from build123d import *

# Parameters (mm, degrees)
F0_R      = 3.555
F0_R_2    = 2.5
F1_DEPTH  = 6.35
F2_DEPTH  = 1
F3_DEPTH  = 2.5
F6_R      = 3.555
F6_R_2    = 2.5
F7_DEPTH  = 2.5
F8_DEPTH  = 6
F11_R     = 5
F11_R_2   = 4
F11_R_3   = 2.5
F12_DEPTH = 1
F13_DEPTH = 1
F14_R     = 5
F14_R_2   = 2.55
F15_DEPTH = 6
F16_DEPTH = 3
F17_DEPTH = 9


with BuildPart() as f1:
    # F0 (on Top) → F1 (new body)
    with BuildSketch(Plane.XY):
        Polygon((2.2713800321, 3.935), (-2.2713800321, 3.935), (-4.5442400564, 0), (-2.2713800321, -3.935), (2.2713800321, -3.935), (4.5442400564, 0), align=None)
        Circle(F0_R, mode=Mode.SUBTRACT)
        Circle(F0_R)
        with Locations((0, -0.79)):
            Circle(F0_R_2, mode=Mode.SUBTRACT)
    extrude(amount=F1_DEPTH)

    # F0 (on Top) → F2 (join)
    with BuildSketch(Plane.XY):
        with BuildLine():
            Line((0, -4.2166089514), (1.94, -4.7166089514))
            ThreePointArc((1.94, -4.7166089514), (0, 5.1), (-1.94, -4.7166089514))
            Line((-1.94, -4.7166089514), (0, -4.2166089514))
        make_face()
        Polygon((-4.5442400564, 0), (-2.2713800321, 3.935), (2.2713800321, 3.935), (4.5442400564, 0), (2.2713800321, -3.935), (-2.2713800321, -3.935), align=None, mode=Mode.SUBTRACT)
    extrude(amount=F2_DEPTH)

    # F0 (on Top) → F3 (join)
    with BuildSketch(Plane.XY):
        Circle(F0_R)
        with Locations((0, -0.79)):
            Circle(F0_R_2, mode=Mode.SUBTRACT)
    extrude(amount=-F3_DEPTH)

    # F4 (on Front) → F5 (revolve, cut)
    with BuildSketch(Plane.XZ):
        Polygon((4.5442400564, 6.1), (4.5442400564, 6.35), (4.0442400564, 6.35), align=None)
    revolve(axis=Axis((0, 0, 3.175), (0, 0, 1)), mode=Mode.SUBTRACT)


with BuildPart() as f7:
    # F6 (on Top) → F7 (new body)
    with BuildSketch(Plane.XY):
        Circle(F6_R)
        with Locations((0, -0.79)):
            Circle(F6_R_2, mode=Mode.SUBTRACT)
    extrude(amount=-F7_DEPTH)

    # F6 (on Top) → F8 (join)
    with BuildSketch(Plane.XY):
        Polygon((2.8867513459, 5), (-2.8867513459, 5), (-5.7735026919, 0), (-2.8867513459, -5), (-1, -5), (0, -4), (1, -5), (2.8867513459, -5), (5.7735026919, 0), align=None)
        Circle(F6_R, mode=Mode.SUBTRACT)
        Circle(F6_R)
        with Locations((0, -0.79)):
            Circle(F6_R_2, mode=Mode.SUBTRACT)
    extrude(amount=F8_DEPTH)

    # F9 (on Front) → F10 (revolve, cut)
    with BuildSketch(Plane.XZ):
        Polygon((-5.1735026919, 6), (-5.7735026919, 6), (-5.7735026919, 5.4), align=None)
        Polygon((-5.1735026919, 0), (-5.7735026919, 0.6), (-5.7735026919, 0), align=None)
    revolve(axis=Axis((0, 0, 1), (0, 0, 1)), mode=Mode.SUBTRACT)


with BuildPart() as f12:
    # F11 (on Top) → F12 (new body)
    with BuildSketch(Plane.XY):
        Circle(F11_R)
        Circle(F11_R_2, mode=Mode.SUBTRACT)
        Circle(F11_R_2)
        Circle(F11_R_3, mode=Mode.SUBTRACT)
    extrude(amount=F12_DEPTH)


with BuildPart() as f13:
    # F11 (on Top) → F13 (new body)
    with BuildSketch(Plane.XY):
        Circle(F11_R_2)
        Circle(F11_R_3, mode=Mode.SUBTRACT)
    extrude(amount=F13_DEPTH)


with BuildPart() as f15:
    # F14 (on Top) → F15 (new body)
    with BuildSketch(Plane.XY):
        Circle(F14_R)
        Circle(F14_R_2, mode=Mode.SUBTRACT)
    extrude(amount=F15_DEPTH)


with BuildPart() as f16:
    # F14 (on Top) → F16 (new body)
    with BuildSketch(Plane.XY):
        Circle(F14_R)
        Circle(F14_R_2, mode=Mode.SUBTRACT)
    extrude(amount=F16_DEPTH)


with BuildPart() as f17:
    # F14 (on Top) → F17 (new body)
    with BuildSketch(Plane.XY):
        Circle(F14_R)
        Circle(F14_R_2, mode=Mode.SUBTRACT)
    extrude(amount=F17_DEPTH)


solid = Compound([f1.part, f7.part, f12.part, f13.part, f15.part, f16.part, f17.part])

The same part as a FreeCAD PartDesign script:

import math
import FreeCAD as App
import Part
import Sketcher
from FreeCAD import Vector
Q = App.Units.Quantity

doc = App.newDocument("Part")
body = doc.addObject("PartDesign::Body", "Body")

sketch1 = doc.addObject("Sketcher::SketchObject", "Sketch")
body.addObject(sketch1)
sketch1.AttachmentSupport = (doc.XY_Plane, [""])
sketch1.MapMode = "FlatFace"
sketch1.addGeometry([
    Part.LineSegment(Vector(2.3, 3.9, 0), Vector(-2.3, 3.9, 0)),
    Part.LineSegment(Vector(-2.3, 3.9, 0), Vector(-4.5, 0, 0)),
    Part.LineSegment(Vector(-4.5, 0, 0), Vector(-2.3, -3.9, 0)),
    Part.LineSegment(Vector(-2.3, -3.9, 0), Vector(2.3, -3.9, 0)),
    Part.LineSegment(Vector(2.3, -3.9, 0), Vector(4.5, 0, 0)),
    Part.LineSegment(Vector(4.5, 0, 0), Vector(2.3, 3.9, 0)),
    Part.Circle(Vector(0, -0.8, 0), Vector(0, 0, 1), 2.5),
], False)
sketch1.addConstraint([
    Sketcher.Constraint("Coincident", 0, 2, 1, 1),
    Sketcher.Constraint("Coincident", 1, 2, 2, 1),
    Sketcher.Constraint("Coincident", 2, 2, 3, 1),
    Sketcher.Constraint("Coincident", 3, 2, 4, 1),
    Sketcher.Constraint("Coincident", 4, 2, 5, 1),
    Sketcher.Constraint("Coincident", 5, 2, 0, 1),
    Sketcher.Constraint("Horizontal", 0),
    Sketcher.Constraint("Horizontal", 3),
    Sketcher.Constraint("Symmetric", 0, 2, 3, 2, -1, 1),
    Sketcher.Constraint("Symmetric", 1, 2, 4, 2, -1, 1),
    Sketcher.Constraint("PointOnObject", 6, 3, -2),
    Sketcher.Constraint("PointOnObject", 1, 2, -1),
    Sketcher.Constraint("Parallel", 2, 5),
    Sketcher.Constraint("Vertical", 0, 2, 2, 2),
    Sketcher.Constraint("Diameter", 6, 5.0),
    Sketcher.Constraint("DistanceY", 6, 3, -1, 1, 0.79),
    Sketcher.Constraint("DistanceY", 2, 2, 0, 2, 7.87),
    Sketcher.Constraint("DistanceX", 0, 2, 0, 1, 4.54276),
    Sketcher.Constraint("Distance", 1, 4.54424),
])
pad1 = doc.addObject("PartDesign::Pad", "Pad")
body.addObject(pad1)
pad1.Profile = sketch1
pad1.Length = 6.35

sketch2 = doc.addObject("Sketcher::SketchObject", "Sketch001")
body.addObject(sketch2)
sketch2.AttachmentSupport = (doc.XY_Plane, [""])
sketch2.MapMode = "FlatFace"
sketch2.addGeometry([
    Part.LineSegment(Vector(0, -4.2, 0), Vector(1.9, -4.7, 0)),
    Part.ArcOfCircle(Part.Circle(Vector(0, 0, 0), Vector(0, 0, 1), 5.1), math.radians(-68), math.radians(248)),
    Part.LineSegment(Vector(-1.9, -4.7, 0), Vector(0, -4.2, 0)),
    Part.LineSegment(Vector(-2.3, -3.9, 0), Vector(-4.5, 0, 0)),
    Part.LineSegment(Vector(-4.5, 0, 0), Vector(-2.3, 3.9, 0)),
    Part.LineSegment(Vector(-2.3, 3.9, 0), Vector(2.3, 3.9, 0)),
    Part.LineSegment(Vector(2.3, 3.9, 0), Vector(4.5, 0, 0)),
    Part.LineSegment(Vector(4.5, 0, 0), Vector(2.3, -3.9, 0)),
    Part.LineSegment(Vector(2.3, -3.9, 0), Vector(-2.3, -3.9, 0)),
], False)
sketch2.addConstraint([
    Sketcher.Constraint("Coincident", 0, 2, 1, 1),
    Sketcher.Constraint("Coincident", 1, 2, 2, 1),
    Sketcher.Constraint("Coincident", 2, 2, 0, 1),
    Sketcher.Constraint("Coincident", 3, 2, 4, 1),
    Sketcher.Constraint("Coincident", 4, 2, 5, 1),
    Sketcher.Constraint("Coincident", 5, 2, 6, 1),
    Sketcher.Constraint("Coincident", 6, 2, 7, 1),
    Sketcher.Constraint("Coincident", 7, 2, 8, 1),
    Sketcher.Constraint("Coincident", 8, 2, 3, 1),
    Sketcher.Constraint("Horizontal", 5),
    Sketcher.Constraint("Horizontal", 8),
    Sketcher.Constraint("Coincident", 1, 3, -1, 1),
    Sketcher.Constraint("Symmetric", 3, 2, 6, 2, -1, 1),
    Sketcher.Constraint("Symmetric", 4, 2, 7, 2, -1, 1),
    Sketcher.Constraint("PointOnObject", 2, 2, -2),
    Sketcher.Constraint("PointOnObject", 3, 2, -1),
    Sketcher.Constraint("Parallel", 3, 6),
    Sketcher.Constraint("Horizontal", 0, 2, 1, 2),
    Sketcher.Constraint("Vertical", 5, 2, 7, 2),
    Sketcher.Constraint("Radius", 1, 5.1),
    Sketcher.Constraint("DistanceY", 0, 2, 2, 2, 0.5),
    Sketcher.Constraint("DistanceX", -1, 1, 0, 2, 1.94),
    Sketcher.Constraint("DistanceY", -1, 1, 4, 2, 3.935),
    Sketcher.Constraint("DistanceX", 5, 1, 5, 2, 4.54276),
    Sketcher.Constraint("Distance", 3, 4.54424),
])
pad2 = doc.addObject("PartDesign::Pad", "Pad001")
body.addObject(pad2)
pad2.Profile = sketch2
pad2.Length = 1

sketch3 = doc.addObject("Sketcher::SketchObject", "Sketch002")
body.addObject(sketch3)
sketch3.AttachmentSupport = (doc.XY_Plane, [""])
sketch3.MapMode = "FlatFace"
sketch3.addGeometry([
    Part.Circle(Vector(0, 0, 0), Vector(0, 0, 1), 3.6),
    Part.Circle(Vector(0, -0.8, 0), Vector(0, 0, 1), 2.5),
], False)
sketch3.addConstraint([
    Sketcher.Constraint("Coincident", 0, 3, -1, 1),
    Sketcher.Constraint("PointOnObject", 1, 3, -2),
    Sketcher.Constraint("Diameter", 1, 5.0),
    Sketcher.Constraint("Diameter", 0, 7.11),
    Sketcher.Constraint("DistanceY", 1, 3, -1, 1, 0.79),
])
pad3 = doc.addObject("PartDesign::Pad", "Pad002")
body.addObject(pad3)
pad3.Profile = sketch3
pad3.Length = 2.5
pad3.Reversed = True

sketch4 = doc.addObject("Sketcher::SketchObject", "Sketch003")
body.addObject(sketch4)
sketch4.AttachmentSupport = (doc.XZ_Plane, [""])
sketch4.MapMode = "FlatFace"
sketch4.addGeometry([
    Part.LineSegment(Vector(4.54, 6.1, 0), Vector(4.54, 6.35, 0)),
    Part.LineSegment(Vector(4.54, 6.35, 0), Vector(4.04, 6.35, 0)),
    Part.LineSegment(Vector(4.04, 6.35, 0), Vector(4.54, 6.1, 0)),
], False)
sketch4.addConstraint([
    Sketcher.Constraint("Coincident", 0, 2, 1, 1),
    Sketcher.Constraint("Coincident", 1, 2, 2, 1),
    Sketcher.Constraint("Coincident", 2, 2, 0, 1),
    Sketcher.Constraint("Vertical", 0),
    Sketcher.Constraint("Horizontal", 1),
    Sketcher.Constraint("DistanceX", 1, 2, 1, 1, 0.5),
    Sketcher.Constraint("DistanceY", 0, 1, 0, 2, 0.25),
    Sketcher.Constraint("DistanceY", -1, 1, 2, 2, 6.1),
    Sketcher.Constraint("DistanceX", -1, 1, 0, 2, 4.54424),
])
groove = doc.addObject("PartDesign::Groove", "Groove")
body.addObject(groove)
groove.Profile = sketch4
groove.ReferenceAxis = (sketch4, ["V_Axis"])
groove.Angle = 360
body2 = doc.addObject("PartDesign::Body", "Body001")

sketch5 = doc.addObject("Sketcher::SketchObject", "Sketch004")
body2.addObject(sketch5)
sketch5.AttachmentSupport = (doc.getObject("XY_Plane001"), [""])
sketch5.MapMode = "FlatFace"
sketch5.addGeometry([
    Part.Circle(Vector(0, 0, 0), Vector(0, 0, 1), 3.6),
    Part.Circle(Vector(0, -0.8, 0), Vector(0, 0, 1), 2.5),
], False)
sketch5.addConstraint([
    Sketcher.Constraint("Coincident", 0, 3, -1, 1),
    Sketcher.Constraint("PointOnObject", 1, 3, -2),
    Sketcher.Constraint("Diameter", 1, 5.0),
    Sketcher.Constraint("Diameter", 0, 7.11),
    Sketcher.Constraint("DistanceY", 1, 3, -1, 1, 0.79),
])
pad4 = doc.addObject("PartDesign::Pad", "Pad003")
body2.addObject(pad4)
pad4.Profile = sketch5
pad4.Length = 2.5
pad4.Reversed = True

sketch6 = doc.addObject("Sketcher::SketchObject", "Sketch005")
body2.addObject(sketch6)
sketch6.AttachmentSupport = (doc.getObject("XY_Plane001"), [""])
sketch6.MapMode = "FlatFace"
sketch6.addGeometry([
    Part.LineSegment(Vector(2.9, 5, 0), Vector(-2.9, 5, 0)),
    Part.LineSegment(Vector(-2.9, 5, 0), Vector(-5.8, 0, 0)),
    Part.LineSegment(Vector(-5.8, 0, 0), Vector(-2.9, -5, 0)),
    Part.LineSegment(Vector(-2.9, -5, 0), Vector(-1, -5, 0)),
    Part.LineSegment(Vector(-1, -5, 0), Vector(0, -4, 0)),
    Part.LineSegment(Vector(0, -4, 0), Vector(1, -5, 0)),
    Part.LineSegment(Vector(1, -5, 0), Vector(2.9, -5, 0)),
    Part.LineSegment(Vector(2.9, -5, 0), Vector(5.8, 0, 0)),
    Part.LineSegment(Vector(5.8, 0, 0), Vector(2.9, 5, 0)),
    Part.Circle(Vector(0, -0.8, 0), Vector(0, 0, 1), 2.5),
], False)
sketch6.addConstraint([
    Sketcher.Constraint("Coincident", 0, 2, 1, 1),
    Sketcher.Constraint("Coincident", 1, 2, 2, 1),
    Sketcher.Constraint("Coincident", 2, 2, 3, 1),
    Sketcher.Constraint("Coincident", 3, 2, 4, 1),
    Sketcher.Constraint("Coincident", 4, 2, 5, 1),
    Sketcher.Constraint("Coincident", 5, 2, 6, 1),
    Sketcher.Constraint("Coincident", 6, 2, 7, 1),
    Sketcher.Constraint("Coincident", 7, 2, 8, 1),
    Sketcher.Constraint("Coincident", 8, 2, 0, 1),
    Sketcher.Constraint("Horizontal", 0),
    Sketcher.Constraint("Horizontal", 3),
    Sketcher.Constraint("Horizontal", 6),
    Sketcher.Constraint("Symmetric", 0, 2, 6, 2, -1, 1),
    Sketcher.Constraint("Symmetric", 1, 2, 7, 2, -1, 1),
    Sketcher.Constraint("Symmetric", 2, 2, 8, 2, -1, 1),
    Sketcher.Constraint("PointOnObject", 9, 3, -2),
    Sketcher.Constraint("PointOnObject", 1, 2, -1),
    Sketcher.Constraint("PointOnObject", 4, 2, -2),
    Sketcher.Constraint("Perpendicular", 4, 5),
    Sketcher.Constraint("Vertical", 0, 2, 2, 2),
    Sketcher.Constraint("Equal", 3, 6),
    Sketcher.Constraint("Diameter", 9, 5.0),
    Sketcher.Constraint("Angle", 1, Q("-120 deg")),
    Sketcher.Constraint("DistanceY", -1, 1, 0, 2, 5.0),
    Sketcher.Constraint("DistanceX", 3, 2, -1, 1, 1.0),
    Sketcher.Constraint("DistanceY", 9, 3, -1, 1, 0.79),
    Sketcher.Constraint("DistanceX", 3, 1, 3, 2, 1.886751),
])
pad5 = doc.addObject("PartDesign::Pad", "Pad004")
body2.addObject(pad5)
pad5.Profile = sketch6
pad5.Length = 6

sketch7 = doc.addObject("Sketcher::SketchObject", "Sketch006")
body2.addObject(sketch7)
sketch7.AttachmentSupport = (doc.getObject("XZ_Plane001"), [""])
sketch7.MapMode = "FlatFace"
sketch7.addGeometry([
    Part.LineSegment(Vector(-5.2, 6, 0), Vector(-5.8, 6, 0)),
    Part.LineSegment(Vector(-5.8, 6, 0), Vector(-5.8, 5.4, 0)),
    Part.LineSegment(Vector(-5.8, 5.4, 0), Vector(-5.2, 6, 0)),
    Part.LineSegment(Vector(-5.2, 0, 0), Vector(-5.8, 0.6, 0)),
    Part.LineSegment(Vector(-5.8, 0.6, 0), Vector(-5.8, 0, 0)),
    Part.LineSegment(Vector(-5.8, 0, 0), Vector(-5.2, 0, 0)),
], False)
sketch7.addConstraint([
    Sketcher.Constraint("Coincident", 0, 2, 1, 1),
    Sketcher.Constraint("Coincident", 1, 2, 2, 1),
    Sketcher.Constraint("Coincident", 2, 2, 0, 1),
    Sketcher.Constraint("Coincident", 3, 2, 4, 1),
    Sketcher.Constraint("Coincident", 4, 2, 5, 1),
    Sketcher.Constraint("Coincident", 5, 2, 3, 1),
    Sketcher.Constraint("Horizontal", 0),
    Sketcher.Constraint("Vertical", 1),
    Sketcher.Constraint("Vertical", 4),
    Sketcher.Constraint("Horizontal", 5),
    Sketcher.Constraint("PointOnObject", 4, 2, -1),
    Sketcher.Constraint("Perpendicular", 2, 3),
    Sketcher.Constraint("Vertical", 1, 2, 3, 2),
    Sketcher.Constraint("Vertical", 2, 2, 5, 2),
    Sketcher.Constraint("Equal", 5, 1),
    Sketcher.Constraint("DistanceX", 0, 2, 0, 1, 0.6),
    Sketcher.Constraint("DistanceY", -1, 1, 0, 2, 6.0),
    Sketcher.Constraint("DistanceX", 0, 2, -1, 1, 5.773503),
])
groove2 = doc.addObject("PartDesign::Groove", "Groove001")
body2.addObject(groove2)
groove2.Profile = sketch7
groove2.ReferenceAxis = (sketch7, ["V_Axis"])
groove2.Angle = 360
body3 = doc.addObject("PartDesign::Body", "Body002")

sketch8 = doc.addObject("Sketcher::SketchObject", "Sketch007")
body3.addObject(sketch8)
sketch8.AttachmentSupport = (doc.getObject("XY_Plane002"), [""])
sketch8.MapMode = "FlatFace"
sketch8.addGeometry([
    Part.Circle(Vector(0, 0, 0), Vector(0, 0, 1), 5),
    Part.Circle(Vector(0, 0, 0), Vector(0, 0, 1), 2.5),
], False)
sketch8.addConstraint([
    Sketcher.Constraint("Coincident", 0, 3, -1, 1),
    Sketcher.Constraint("Coincident", 1, 3, -1, 1),
    Sketcher.Constraint("Diameter", 0, 10.0),
    Sketcher.Constraint("Diameter", 1, 5.0),
])
pad6 = doc.addObject("PartDesign::Pad", "Pad005")
body3.addObject(pad6)
pad6.Profile = sketch8
pad6.Length = 1
body4 = doc.addObject("PartDesign::Body", "Body003")

sketch9 = doc.addObject("Sketcher::SketchObject", "Sketch008")
body4.addObject(sketch9)
sketch9.AttachmentSupport = (doc.getObject("XY_Plane003"), [""])
sketch9.MapMode = "FlatFace"
sketch9.addGeometry([
    Part.Circle(Vector(0, 0, 0), Vector(0, 0, 1), 4),
    Part.Circle(Vector(0, 0, 0), Vector(0, 0, 1), 2.5),
], False)
sketch9.addConstraint([
    Sketcher.Constraint("Coincident", 0, 3, -1, 1),
    Sketcher.Constraint("Coincident", 1, 3, -1, 1),
    Sketcher.Constraint("Diameter", 0, 8.0),
    Sketcher.Constraint("Diameter", 1, 5.0),
])
pad7 = doc.addObject("PartDesign::Pad", "Pad006")
body4.addObject(pad7)
pad7.Profile = sketch9
pad7.Length = 1
body5 = doc.addObject("PartDesign::Body", "Body004")

sketch10 = doc.addObject("Sketcher::SketchObject", "Sketch009")
body5.addObject(sketch10)
sketch10.AttachmentSupport = (doc.getObject("XY_Plane004"), [""])
sketch10.MapMode = "FlatFace"
sketch10.addGeometry([
    Part.Circle(Vector(0, 0, 0), Vector(0, 0, 1), 5),
    Part.Circle(Vector(0, 0, 0), Vector(0, 0, 1), 2.5),
], False)
sketch10.addConstraint([
    Sketcher.Constraint("Coincident", 0, 3, -1, 1),
    Sketcher.Constraint("Coincident", 1, 3, -1, 1),
    Sketcher.Constraint("Diameter", 0, 10.0),
    Sketcher.Constraint("Diameter", 1, 5.1),
])
pad8 = doc.addObject("PartDesign::Pad", "Pad007")
body5.addObject(pad8)
pad8.Profile = sketch10
pad8.Length = 6
body6 = doc.addObject("PartDesign::Body", "Body005")

sketch11 = doc.addObject("Sketcher::SketchObject", "Sketch010")
body6.addObject(sketch11)
sketch11.AttachmentSupport = (doc.getObject("XY_Plane005"), [""])
sketch11.MapMode = "FlatFace"
sketch11.addGeometry([
    Part.Circle(Vector(0, 0, 0), Vector(0, 0, 1), 5),
    Part.Circle(Vector(0, 0, 0), Vector(0, 0, 1), 2.5),
], False)
sketch11.addConstraint([
    Sketcher.Constraint("Coincident", 0, 3, -1, 1),
    Sketcher.Constraint("Coincident", 1, 3, -1, 1),
    Sketcher.Constraint("Diameter", 0, 10.0),
    Sketcher.Constraint("Diameter", 1, 5.1),
])
pad9 = doc.addObject("PartDesign::Pad", "Pad008")
body6.addObject(pad9)
pad9.Profile = sketch11
pad9.Length = 3
body7 = doc.addObject("PartDesign::Body", "Body006")

sketch12 = doc.addObject("Sketcher::SketchObject", "Sketch011")
body7.addObject(sketch12)
sketch12.AttachmentSupport = (doc.getObject("XY_Plane006"), [""])
sketch12.MapMode = "FlatFace"
sketch12.addGeometry([
    Part.Circle(Vector(0, 0, 0), Vector(0, 0, 1), 5),
    Part.Circle(Vector(0, 0, 0), Vector(0, 0, 1), 2.5),
], False)
sketch12.addConstraint([
    Sketcher.Constraint("Coincident", 0, 3, -1, 1),
    Sketcher.Constraint("Coincident", 1, 3, -1, 1),
    Sketcher.Constraint("Diameter", 0, 10.0),
    Sketcher.Constraint("Diameter", 1, 5.1),
])
pad10 = doc.addObject("PartDesign::Pad", "Pad009")
body7.addObject(pad10)
pad10.Profile = sketch12
pad10.Length = 9

doc.recompute()
